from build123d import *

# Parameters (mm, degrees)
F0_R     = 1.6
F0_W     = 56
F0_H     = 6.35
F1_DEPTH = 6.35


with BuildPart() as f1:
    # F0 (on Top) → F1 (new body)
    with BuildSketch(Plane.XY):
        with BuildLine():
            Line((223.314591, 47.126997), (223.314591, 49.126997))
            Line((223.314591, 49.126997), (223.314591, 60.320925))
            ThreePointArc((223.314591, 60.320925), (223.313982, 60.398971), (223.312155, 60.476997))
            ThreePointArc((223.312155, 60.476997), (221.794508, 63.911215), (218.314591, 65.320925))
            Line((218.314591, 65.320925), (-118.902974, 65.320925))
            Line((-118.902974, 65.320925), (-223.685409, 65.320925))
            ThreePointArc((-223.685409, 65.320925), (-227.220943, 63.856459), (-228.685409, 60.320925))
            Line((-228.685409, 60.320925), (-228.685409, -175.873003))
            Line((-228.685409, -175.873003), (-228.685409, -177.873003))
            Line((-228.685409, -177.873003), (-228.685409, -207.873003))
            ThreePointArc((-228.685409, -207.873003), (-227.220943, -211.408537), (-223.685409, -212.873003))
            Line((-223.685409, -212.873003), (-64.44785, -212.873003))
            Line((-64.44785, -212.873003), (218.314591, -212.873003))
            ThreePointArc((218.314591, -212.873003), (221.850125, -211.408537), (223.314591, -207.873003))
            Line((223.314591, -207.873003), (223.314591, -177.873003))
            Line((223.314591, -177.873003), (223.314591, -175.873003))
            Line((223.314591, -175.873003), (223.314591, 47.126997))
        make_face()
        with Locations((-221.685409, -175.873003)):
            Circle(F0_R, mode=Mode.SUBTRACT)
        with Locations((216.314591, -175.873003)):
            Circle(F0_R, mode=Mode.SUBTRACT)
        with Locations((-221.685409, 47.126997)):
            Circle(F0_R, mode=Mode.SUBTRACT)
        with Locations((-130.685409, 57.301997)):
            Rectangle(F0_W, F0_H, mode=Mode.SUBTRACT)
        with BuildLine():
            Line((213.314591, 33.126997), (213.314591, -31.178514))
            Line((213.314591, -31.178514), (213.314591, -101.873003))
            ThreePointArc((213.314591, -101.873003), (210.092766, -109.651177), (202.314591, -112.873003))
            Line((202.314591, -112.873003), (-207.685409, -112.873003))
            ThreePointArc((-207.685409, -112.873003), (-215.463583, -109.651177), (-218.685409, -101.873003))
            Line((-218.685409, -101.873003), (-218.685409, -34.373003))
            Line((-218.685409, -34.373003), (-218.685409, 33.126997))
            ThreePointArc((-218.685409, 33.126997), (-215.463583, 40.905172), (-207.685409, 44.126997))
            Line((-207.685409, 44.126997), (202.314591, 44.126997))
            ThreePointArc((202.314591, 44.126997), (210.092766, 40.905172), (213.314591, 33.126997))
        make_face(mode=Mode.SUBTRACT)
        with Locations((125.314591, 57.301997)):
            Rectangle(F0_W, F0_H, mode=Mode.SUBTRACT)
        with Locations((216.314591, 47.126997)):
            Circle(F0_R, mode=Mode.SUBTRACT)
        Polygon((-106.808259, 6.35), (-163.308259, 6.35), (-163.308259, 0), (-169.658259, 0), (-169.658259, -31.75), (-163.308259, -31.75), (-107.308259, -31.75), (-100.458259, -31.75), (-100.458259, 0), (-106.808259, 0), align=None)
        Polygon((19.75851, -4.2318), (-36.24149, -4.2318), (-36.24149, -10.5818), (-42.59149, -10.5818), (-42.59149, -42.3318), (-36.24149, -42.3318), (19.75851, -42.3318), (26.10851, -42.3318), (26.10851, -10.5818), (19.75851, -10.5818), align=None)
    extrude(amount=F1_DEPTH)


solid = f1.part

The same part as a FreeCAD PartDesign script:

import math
import FreeCAD as App
import Part
import Sketcher

doc = App.newDocument("Part")
params = doc.addObject("Spreadsheet::Sheet", "Params")
for row, (alias, value) in enumerate([
    ("sketch1_radius", "5 mm"),
    ("sketch1_radius2", "10.999999 mm"),
    ("sketch1_diameter", "3.2 mm"),
    ("sketch1_width", "442 mm"),
    ("sketch1_width2", "56 mm"),
    ("pad1_length", "6.35 mm"),
], start=1):
    params.set(f"A{row}", alias)
    params.set(f"B{row}", "=" + value)
    params.setAlias(f"B{row}", alias)

body = doc.addObject("PartDesign::Body", "Body")
body.AllowCompound = True

# Sketch on XY plane
sketch1 = body.newObject("Sketcher::SketchObject", "Sketch")
sketch1.AttachmentSupport = (doc.getObject("XY_Plane"), [""])
sketch1.MapMode = "FlatFace"
sketch1.addGeometry(Part.ArcOfCircle(Part.Circle(App.Vector(218.31, 60.32, 0), App.Vector(0, 0, 1), 5), math.radians(0), math.radians(1.79)), False)
sketch1.addGeometry(Part.ArcOfCircle(Part.Circle(App.Vector(218.31, 60.32, 0), App.Vector(0, 0, 1), 5), math.radians(2), math.radians(90)), False)
sketch1.addGeometry(Part.LineSegment(App.Vector(218.31, 65.32, 0), App.Vector(-223.69, 65.32, 0)), False)
sketch1.addGeometry(Part.ArcOfCircle(Part.Circle(App.Vector(-223.69, 60.32, 0), App.Vector(0, 0, 1), 5), math.radians(90), math.radians(180)), False)
sketch1.addGeometry(Part.LineSegment(App.Vector(-228.69, 60.32, 0), App.Vector(-228.69, -207.87, 0)), False)
sketch1.addGeometry(Part.ArcOfCircle(Part.Circle(App.Vector(-223.69, -207.87, 0), App.Vector(0, 0, 1), 5), math.radians(180), math.radians(270)), False)
sketch1.addGeometry(Part.LineSegment(App.Vector(-223.69, -212.87, 0), App.Vector(218.31, -212.87, 0)), False)
sketch1.addGeometry(Part.ArcOfCircle(Part.Circle(App.Vector(218.31, -207.87, 0), App.Vector(0, 0, 1), 5), math.radians(-90), math.radians(0)), False)
sketch1.addGeometry(Part.LineSegment(App.Vector(223.31, -207.87, 0), App.Vector(223.31, 60.32, 0)), False)
sketch1.addGeometry(Part.Circle(App.Vector(-221.69, -175.87, 0), App.Vector(0, 0, 1), 1.6), False)
sketch1.addGeometry(Part.Circle(App.Vector(216.31, -175.87, 0), App.Vector(0, 0, 1), 1.6), False)
sketch1.addGeometry(Part.Circle(App.Vector(-221.69, 47.13, 0), App.Vector(0, 0, 1), 1.6), False)
sketch1.addGeometry(Part.LineSegment(App.Vector(-102.69, 54.13, 0), App.Vector(-158.69, 54.13, 0)), False)
sketch1.addGeometry(Part.LineSegment(App.Vector(-158.69, 54.13, 0), App.Vector(-158.69, 60.48, 0)), False)
sketch1.addGeometry(Part.LineSegment(App.Vector(-158.69, 60.48, 0), App.Vector(-102.69, 60.48, 0)), False)
sketch1.addGeometry(Part.LineSegment(App.Vector(-102.69, 60.48, 0), App.Vector(-102.69, 54.13, 0)), False)
sketch1.addGeometry(Part.ArcOfCircle(Part.Circle(App.Vector(202.31, 33.13, 0), App.Vector(0, 0, 1), 11), math.radians(0), math.radians(90)), False)
sketch1.addGeometry(Part.LineSegment(App.Vector(213.31, 33.13, 0), App.Vector(213.31, -101.87, 0)), False)
sketch1.addGeometry(Part.ArcOfCircle(Part.Circle(App.Vector(202.31, -101.87, 0), App.Vector(0, 0, 1), 11), math.radians(-90), math.radians(0)), False)
sketch1.addGeometry(Part.LineSegment(App.Vector(202.31, -112.87, 0), App.Vector(-207.69, -112.87, 0)), False)
sketch1.addGeometry(Part.ArcOfCircle(Part.Circle(App.Vector(-207.69, -101.87, 0), App.Vector(0, 0, 1), 11), math.radians(-180), math.radians(-90)), False)
sketch1.addGeometry(Part.LineSegment(App.Vector(-218.69, -101.87, 0), App.Vector(-218.69, 33.13, 0)), False)
sketch1.addGeometry(Part.ArcOfCircle(Part.Circle(App.Vector(-207.69, 33.13, 0), App.Vector(0, 0, 1), 11), math.radians(90), math.radians(180)), False)
sketch1.addGeometry(Part.LineSegment(App.Vector(-207.69, 44.13, 0), App.Vector(202.31, 44.13, 0)), False)
sketch1.addGeometry(Part.LineSegment(App.Vector(153.31, 54.13, 0), App.Vector(97.31, 54.13, 0)), False)
sketch1.addGeometry(Part.LineSegment(App.Vector(97.31, 54.13, 0), App.Vector(97.31, 60.48, 0)), False)
sketch1.addGeometry(Part.LineSegment(App.Vector(97.31, 60.48, 0), App.Vector(153.31, 60.48, 0)), False)
sketch1.addGeometry(Part.LineSegment(App.Vector(153.31, 60.48, 0), App.Vector(153.31, 54.13, 0)), False)
sketch1.addGeometry(Part.Circle(App.Vector(216.31, 47.13, 0), App.Vector(0, 0, 1), 1.6), False)
sketch1.addGeometry(Part.LineSegment(App.Vector(-106.81, 6.35, 0), App.Vector(-163.31, 6.35, 0)), False)
sketch1.addGeometry(Part.LineSegment(App.Vector(-163.31, 6.35, 0), App.Vector(-163.31, 0, 0)), False)
sketch1.addGeometry(Part.LineSegment(App.Vector(-163.31, 0, 0), App.Vector(-169.66, 0, 0)), False)
sketch1.addGeometry(Part.LineSegment(App.Vector(-169.66, 0, 0), App.Vector(-169.66, -31.75, 0)), False)
sketch1.addGeometry(Part.LineSegment(App.Vector(-169.66, -31.75, 0), App.Vector(-100.46, -31.75, 0)), False)
sketch1.addGeometry(Part.LineSegment(App.Vector(-100.46, -31.75, 0), App.Vector(-100.46, 0, 0)), False)
sketch1.addGeometry(Part.LineSegment(App.Vector(-100.46, 0, 0), App.Vector(-106.81, 0, 0)), False)
sketch1.addGeometry(Part.LineSegment(App.Vector(-106.81, 0, 0), App.Vector(-106.81, 6.35, 0)), False)
sketch1.addGeometry(Part.LineSegment(App.Vector(19.76, -4.23, 0), App.Vector(-36.24, -4.23, 0)), False)
sketch1.addGeometry(Part.LineSegment(App.Vector(-36.24, -4.23, 0), App.Vector(-36.24, -10.58, 0)), False)
sketch1.addGeometry(Part.LineSegment(App.Vector(-36.24, -10.58, 0), App.Vector(-42.59, -10.58, 0)), False)
sketch1.addGeometry(Part.LineSegment(App.Vector(-42.59, -10.58, 0), App.Vector(-42.59, -42.33, 0)), False)
sketch1.addGeometry(Part.LineSegment(App.Vector(-42.59, -42.33, 0), App.Vector(26.11, -42.33, 0)), False)
sketch1.addGeometry(Part.LineSegment(App.Vector(26.11, -42.33, 0), App.Vector(26.11, -10.58, 0)), False)
sketch1.addGeometry(Part.LineSegment(App.Vector(26.11, -10.58, 0), App.Vector(19.76, -10.58, 0)), False)
sketch1.addGeometry(Part.LineSegment(App.Vector(19.76, -10.58, 0), App.Vector(19.76, -4.23, 0)), False)
sketch1.addConstraint(Sketcher.Constraint("Coincident", 0, 2, 1, 1))
sketch1.addConstraint(Sketcher.Constraint("Tangent", 1, 2, 2, 1))
sketch1.addConstraint(Sketcher.Constraint("Tangent", 2, 2, 3, 1))
sketch1.addConstraint(Sketcher.Constraint("Tangent", 3, 2, 4, 1))
sketch1.addConstraint(Sketcher.Constraint("Tangent", 4, 2, 5, 1))
sketch1.addConstraint(Sketcher.Constraint("Tangent", 5, 2, 6, 1))
sketch1.addConstraint(Sketcher.Constraint("Tangent", 6, 2, 7, 1))
sketch1.addConstraint(Sketcher.Constraint("Tangent", 7, 2, 8, 1))
sketch1.addConstraint(Sketcher.Constraint("Tangent", 8, 2, 0, 1))
sketch1.addConstraint(Sketcher.Constraint("Coincident", 12, 2, 13, 1))
sketch1.addConstraint(Sketcher.Constraint("Coincident", 13, 2, 14, 1))
sketch1.addConstraint(Sketcher.Constraint("Coincident", 14, 2, 15, 1))
sketch1.addConstraint(Sketcher.Constraint("Coincident", 15, 2, 12, 1))
sketch1.addConstraint(Sketcher.Constraint("Tangent", 16, 1, 17, 1))
sketch1.addConstraint(Sketcher.Constraint("Tangent", 17, 2, 18, 2))
sketch1.addConstraint(Sketcher.Constraint("Tangent", 18, 1, 19, 1))
sketch1.addConstraint(Sketcher.Constraint("Tangent", 19, 2, 20, 2))
sketch1.addConstraint(Sketcher.Constraint("Tangent", 20, 1, 21, 1))
sketch1.addConstraint(Sketcher.Constraint("Tangent", 21, 2, 22, 2))
sketch1.addConstraint(Sketcher.Constraint("Tangent", 22, 1, 23, 1))
sketch1.addConstraint(Sketcher.Constraint("Tangent", 23, 2, 16, 2))
sketch1.addConstraint(Sketcher.Constraint("Coincident", 24, 2, 25, 1))
sketch1.addConstraint(Sketcher.Constraint("Coincident", 25, 2, 26, 1))
sketch1.addConstraint(Sketcher.Constraint("Coincident", 26, 2, 27, 1))
sketch1.addConstraint(Sketcher.Constraint("Coincident", 27, 2, 24, 1))
sketch1.addConstraint(Sketcher.Constraint("Coincident", 29, 2, 30, 1))
sketch1.addConstraint(Sketcher.Constraint("Coincident", 30, 2, 31, 1))
sketch1.addConstraint(Sketcher.Constraint("Coincident", 31, 2, 32, 1))
sketch1.addConstraint(Sketcher.Constraint("Coincident", 32, 2, 33, 1))
sketch1.addConstraint(Sketcher.Constraint("Coincident", 33, 2, 34, 1))
sketch1.addConstraint(Sketcher.Constraint("Coincident", 34, 2, 35, 1))
sketch1.addConstraint(Sketcher.Constraint("Coincident", 35, 2, 36, 1))
sketch1.addConstraint(Sketcher.Constraint("Coincident", 36, 2, 29, 1))
sketch1.addConstraint(Sketcher.Constraint("Coincident", 37, 2, 38, 1))
sketch1.addConstraint(Sketcher.Constraint("Coincident", 38, 2, 39, 1))
sketch1.addConstraint(Sketcher.Constraint("Coincident", 39, 2, 40, 1))
sketch1.addConstraint(Sketcher.Constraint("Coincident", 40, 2, 41, 1))
sketch1.addConstraint(Sketcher.Constraint("Coincident", 41, 2, 42, 1))
sketch1.addConstraint(Sketcher.Constraint("Coincident", 42, 2, 43, 1))
sketch1.addConstraint(Sketcher.Constraint("Coincident", 43, 2, 44, 1))
sketch1.addConstraint(Sketcher.Constraint("Coincident", 44, 2, 37, 1))
sketch1.addConstraint(Sketcher.Constraint("Horizontal", 2))
sketch1.addConstraint(Sketcher.Constraint("Vertical", 4))
sketch1.addConstraint(Sketcher.Constraint("Horizontal", 6))
sketch1.addConstraint(Sketcher.Constraint("Vertical", 8))
sketch1.addConstraint(Sketcher.Constraint("Horizontal", 12))
sketch1.addConstraint(Sketcher.Constraint("Vertical", 13))
sketch1.addConstraint(Sketcher.Constraint("Horizontal", 14))
sketch1.addConstraint(Sketcher.Constraint("Vertical", 15))
sketch1.addConstraint(Sketcher.Constraint("Vertical", 17))
sketch1.addConstraint(Sketcher.Constraint("Horizontal", 19))
sketch1.addConstraint(Sketcher.Constraint("Vertical", 21))
sketch1.addConstraint(Sketcher.Constraint("Horizontal", 23))
sketch1.addConstraint(Sketcher.Constraint("Horizontal", 24))
sketch1.addConstraint(Sketcher.Constraint("Vertical", 25))
sketch1.addConstraint(Sketcher.Constraint("Horizontal", 26))
sketch1.addConstraint(Sketcher.Constraint("Vertical", 27))
sketch1.addConstraint(Sketcher.Constraint("Horizontal", 29))
sketch1.addConstraint(Sketcher.Constraint("Vertical", 30))
sketch1.addConstraint(Sketcher.Constraint("Horizontal", 31))
sketch1.addConstraint(Sketcher.Constraint("Vertical", 32))
sketch1.addConstraint(Sketcher.Constraint("Horizontal", 33))
sketch1.addConstraint(Sketcher.Constraint("Vertical", 34))
sketch1.addConstraint(Sketcher.Constraint("Horizontal", 35))
sketch1.addConstraint(Sketcher.Constraint("Vertical", 36))
sketch1.addConstraint(Sketcher.Constraint("Horizontal", 37))
sketch1.addConstraint(Sketcher.Constraint("Vertical", 38))
sketch1.addConstraint(Sketcher.Constraint("Horizontal", 39))
sketch1.addConstraint(Sketcher.Constraint("Vertical", 40))
sketch1.addConstraint(Sketcher.Constraint("Horizontal", 41))
sketch1.addConstraint(Sketcher.Constraint("Vertical", 42))
sketch1.addConstraint(Sketcher.Constraint("Horizontal", 43))
sketch1.addConstraint(Sketcher.Constraint("Vertical", 44))
sketch1.addConstraint(Sketcher.Constraint("Equal", 1, 3))
sketch1.addConstraint(Sketcher.Constraint("Equal", 3, 5))
sketch1.addConstraint(Sketcher.Constraint("Equal", 5, 7))
sketch1.addConstraint(Sketcher.Constraint("Equal", 9, 10))
sketch1.addConstraint(Sketcher.Constraint("Equal", 10, 11))
sketch1.addConstraint(Sketcher.Constraint("Equal", 16, 18))
sketch1.addConstraint(Sketcher.Constraint("Equal", 18, 20))
sketch1.addConstraint(Sketcher.Constraint("Equal", 20, 22))
sketch1.addConstraint(Sketcher.Constraint("Equal", 11, 28))
sketch1.addConstraint(Sketcher.Constraint("PointOnObject", 30, 2, -1))
sketch1.addConstraint(Sketcher.Constraint("PointOnObject", 34, 2, -1))
sketch1.addConstraint(Sketcher.Constraint("Horizontal", 9, 3, 10, 3))
sketch1.addConstraint(Sketcher.Constraint("Horizontal", 11, 3, 28, 3))
sketch1.addConstraint(Sketcher.Constraint("Horizontal", 3, 2, 8, 2))
sketch1.addConstraint(Sketcher.Constraint("Horizontal", 0, 2, 13, 2))
sketch1.addConstraint(Sketcher.Constraint("Horizontal", 15, 2, 24, 2))
sketch1.addConstraint(Sketcher.Constraint("Horizontal", 14, 2, 25, 2))
sketch1.addConstraint(Sketcher.Constraint("Horizontal", 39, 2, 42, 2))
sketch1.addConstraint(Sketcher.Constraint("Vertical", 9, 3, 11, 3))
sketch1.addConstraint(Sketcher.Constraint("Vertical", 10, 3, 28, 3))
sketch1.addConstraint(Sketcher.Constraint("Equal", 14, 24))
sketch1.addConstraint(Sketcher.Constraint("Equal", 31, 35))
sketch1.addConstraint(Sketcher.Constraint("Equal", 26, 37))
sketch1.addConstraint(Sketcher.Constraint("Equal", 35, 39))
sketch1.addConstraint(Sketcher.Constraint("Equal", 39, 43))
sketch1.addConstraint(Sketcher.Constraint("Equal", 43, 13))
sketch1.addConstraint(Sketcher.Constraint("Equal", 27, 30))
sketch1.addConstraint(Sketcher.Constraint("Equal", 36, 38))
sketch1.addConstraint(Sketcher.Constraint("Equal", 34, 40))
sketch1.addConstraint(Sketcher.Constraint("Radius", 1, 5.0))
sketch1.addConstraint(Sketcher.Constraint("Radius", 16, 10.999999))
sketch1.addConstraint(Sketcher.Constraint("Diameter", 9, 3.2))
sketch1.addConstraint(Sketcher.Constraint("DistanceX", 2, 2, 2, 1, 442.0))
sketch1.addConstraint(Sketcher.Constraint("DistanceX", 12, 2, 12, 1, 56.0))
sketch1.addConstraint(Sketcher.Constraint("DistanceX", 19, 2, 19, 1, 410.0))
sketch1.addConstraint(Sketcher.Constraint("DistanceY", 17, 2, 17, 1, 135.0))
sketch1.addConstraint(Sketcher.Constraint("DistanceX", 29, 2, 29, 1, 56.5))
sketch1.addConstraint(Sketcher.Constraint("DistanceX", 33, 1, 33, 2, 69.2))
sketch1.addConstraint(Sketcher.Constraint("DistanceX", 5, 3, 9, 3, 2.0))
sketch1.addConstraint(Sketcher.Constraint("DistanceY", 5, 3, 9, 3, 32.0))
sketch1.addConstraint(Sketcher.Constraint("DistanceX", 10, 3, 7, 3, 2.0))
sketch1.addConstraint(Sketcher.Constraint("DistanceY", 9, 3, 11, 3, 223.0))
sketch1.addConstraint(Sketcher.Constraint("DistanceX", 16, 3, 1, 3, 15.999999))
sketch1.addConstraint(Sketcher.Constraint("DistanceY", 10, 3, 16, 3, 209.000001))
sketch1.addConstraint(Sketcher.Constraint("DistanceX", 22, 3, 12, 2, 49.0))
sketch1.addConstraint(Sketcher.Constraint("DistanceY", 22, 3, 12, 2, 21.0))
sketch1.addConstraint(Sketcher.Constraint("DistanceX", 24, 2, 23, 2, 105.0))
sketch1.addConstraint(Sketcher.Constraint("DistanceY", 32, 2, 32, 1, 31.75))
sketch1.addConstraint(Sketcher.Constraint("DistanceY", -1, 1, 16, 3, 33.126998))
sketch1.addConstraint(Sketcher.Constraint("Radius", 0, 5.000536))
sketch1.addConstraint(Sketcher.Constraint("DistanceY", 4, 2, 4, 1, 268.193928))
sketch1.addConstraint(Sketcher.Constraint("DistanceY", 37, 2, -1, 1, 4.2318))
sketch1.addConstraint(Sketcher.Constraint("DistanceX", -1, 1, 1, 3, 218.314592))
sketch1.addConstraint(Sketcher.Constraint("DistanceX", 29, 2, -1, 1, 163.308259))
sketch1.addConstraint(Sketcher.Constraint("DistanceX", 37, 2, -1, 1, 36.24149))
sketch1.setExpression("Constraints[102]", "Params.sketch1_radius")
sketch1.setExpression("Constraints[103]", "Params.sketch1_radius2")
sketch1.setExpression("Constraints[104]", "Params.sketch1_diameter")
sketch1.setExpression("Constraints[105]", "Params.sketch1_width")
sketch1.setExpression("Constraints[106]", "Params.sketch1_width2")
pad1 = body.newObject("PartDesign::Pad", "Pad")
pad1.Profile = sketch1
pad1.setExpression("Length", "Params.pad1_length")

doc.recompute()
